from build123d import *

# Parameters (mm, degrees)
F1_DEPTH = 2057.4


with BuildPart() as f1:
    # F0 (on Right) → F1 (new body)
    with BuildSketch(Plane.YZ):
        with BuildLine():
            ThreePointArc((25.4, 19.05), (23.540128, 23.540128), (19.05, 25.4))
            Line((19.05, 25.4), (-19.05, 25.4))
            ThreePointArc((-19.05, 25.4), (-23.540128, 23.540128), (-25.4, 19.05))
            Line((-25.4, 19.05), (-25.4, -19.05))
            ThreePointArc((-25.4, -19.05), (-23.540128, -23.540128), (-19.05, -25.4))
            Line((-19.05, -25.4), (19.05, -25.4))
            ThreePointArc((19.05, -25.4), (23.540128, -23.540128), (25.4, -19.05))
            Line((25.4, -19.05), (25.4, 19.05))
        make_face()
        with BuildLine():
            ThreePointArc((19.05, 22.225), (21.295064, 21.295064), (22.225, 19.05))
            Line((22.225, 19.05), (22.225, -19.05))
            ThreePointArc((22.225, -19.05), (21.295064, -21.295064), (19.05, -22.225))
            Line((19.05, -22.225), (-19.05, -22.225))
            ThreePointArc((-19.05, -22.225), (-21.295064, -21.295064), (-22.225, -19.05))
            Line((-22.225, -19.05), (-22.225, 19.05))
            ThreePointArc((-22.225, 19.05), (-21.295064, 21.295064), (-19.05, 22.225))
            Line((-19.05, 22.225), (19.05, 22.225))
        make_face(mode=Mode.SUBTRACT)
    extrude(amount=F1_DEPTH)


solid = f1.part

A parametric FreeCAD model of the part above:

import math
import FreeCAD as App
import Part
import Sketcher

V = App.Vector
Q = App.Units.Quantity

doc = App.newDocument("Part")
params = doc.addObject("Spreadsheet::Sheet", "Params")
for row, (alias, value) in enumerate([
    ("sketch1_radius", "0.25 in"),
    ("sketch1_width", "1.5 in"),
    ("sketch1_radius2", "0.125 in"),
    ("pad1_length", "81 in"),
], start=1):
    params.set(f"A{row}", alias)
    params.set(f"B{row}", "=" + value)
    params.setAlias(f"B{row}", alias)

body = doc.addObject("PartDesign::Body", "Body")

# Sketch on YZ plane
sketch1 = body.newObject("Sketcher::SketchObject", "Sketch")
sketch1.AttachmentSupport = (doc.getObject("YZ_Plane"), [""])
sketch1.MapMode = "FlatFace"
sketch1.addGeometry([
    Part.ArcOfCircle(Part.Circle(V(19, 19, 0), V(0, 0, 1), 6.4), math.radians(0), math.radians(90)),  # 0
    Part.LineSegment(V(19.1, 25.4, 0), V(-19.1, 25.4, 0)),  # 1
    Part.ArcOfCircle(Part.Circle(V(-19, 19, 0), V(0, 0, 1), 6.4), math.radians(90), math.radians(180)),  # 2
    Part.LineSegment(V(-25.4, 19.1, 0), V(-25.4, -19.1, 0)),  # 3
    Part.ArcOfCircle(Part.Circle(V(-19, -19, 0), V(0, 0, 1), 6.4), math.radians(-180), math.radians(-90)),  # 4
    Part.LineSegment(V(-19.1, -25.4, 0), V(19.1, -25.4, 0)),  # 5
    Part.ArcOfCircle(Part.Circle(V(19, -19, 0), V(0, 0, 1), 6.4), math.radians(-90), math.radians(0)),  # 6
    Part.LineSegment(V(25.4, -19.1, 0), V(25.4, 19.1, 0)),  # 7
    Part.LineSegment(V(-19.1, 22.2, 0), V(19.1, 22.2, 0)),  # 8
    Part.ArcOfCircle(Part.Circle(V(19, 19, 0), V(0, 0, 1), 3.2), math.radians(0), math.radians(90)),  # 9
    Part.LineSegment(V(22.2, 19.1, 0), V(22.2, -19.1, 0)),  # 10
    Part.ArcOfCircle(Part.Circle(V(19, -19, 0), V(0, 0, 1), 3.2), math.radians(-90), math.radians(0)),  # 11
    Part.LineSegment(V(19.1, -22.2, 0), V(-19.1, -22.2, 0)),  # 12
    Part.ArcOfCircle(Part.Circle(V(-19, -19, 0), V(0, 0, 1), 3.2), math.radians(-180), math.radians(-90)),  # 13
    Part.LineSegment(V(-22.2, -19.1, 0), V(-22.2, 19.1, 0)),  # 14
    Part.ArcOfCircle(Part.Circle(V(-19, 19, 0), V(0, 0, 1), 3.2), math.radians(90), math.radians(180)),  # 15
], False)
sketch1.addConstraint([
    Sketcher.Constraint("Tangent", 0, 2, 1, 1),
    Sketcher.Constraint("Tangent", 1, 2, 2, 1),
    Sketcher.Constraint("Tangent", 2, 2, 3, 1),
    Sketcher.Constraint("Tangent", 3, 2, 4, 1),
    Sketcher.Constraint("Tangent", 4, 2, 5, 1),
    Sketcher.Constraint("Tangent", 5, 2, 6, 1),
    Sketcher.Constraint("Tangent", 6, 2, 7, 1),
    Sketcher.Constraint("Tangent", 7, 2, 0, 1),
    Sketcher.Constraint("Tangent", 8, 2, 9, 2),
    Sketcher.Constraint("Tangent", 9, 1, 10, 1),
    Sketcher.Constraint("Tangent", 10, 2, 11, 2),
    Sketcher.Constraint("Tangent", 11, 1, 12, 1),
    Sketcher.Constraint("Tangent", 12, 2, 13, 2),
    Sketcher.Constraint("Tangent", 13, 1, 14, 1),
    Sketcher.Constraint("Tangent", 14, 2, 15, 2),
    Sketcher.Constraint("Tangent", 15, 1, 8, 1),
    Sketcher.Constraint("Horizontal", 1),
    Sketcher.Constraint("Vertical", 3),
    Sketcher.Constraint("Horizontal", 5),
    Sketcher.Constraint("Vertical", 7),
    Sketcher.Constraint("Horizontal", 8),
    Sketcher.Constraint("Vertical", 10),
    Sketcher.Constraint("Horizontal", 12),
    Sketcher.Constraint("Vertical", 14),
    Sketcher.Constraint("Coincident", 9, 3, 0, 3),
    Sketcher.Constraint("Coincident", 11, 3, 6, 3),
    Sketcher.Constraint("Coincident", 13, 3, 4, 3),
    Sketcher.Constraint("Equal", 0, 2),
    Sketcher.Constraint("Equal", 2, 4),
    Sketcher.Constraint("Equal", 4, 6),
    Sketcher.Constraint("Equal", 13, 15),
    Sketcher.Constraint("Symmetric", 0, 3, 4, 3, -1, 1),
    Sketcher.Constraint("Equal", 12, 3),
    Sketcher.Constraint("Radius", 0, Q("0.25 in")),
    Sketcher.Constraint("DistanceX", 1, 2, 1, 1, Q("1.5 in")),
    Sketcher.Constraint("Radius", 9, Q("0.125 in")),
])
sketch1.setExpression("Constraints[33]", "Params.sketch1_radius")
sketch1.setExpression("Constraints[34]", "Params.sketch1_width")
sketch1.setExpression("Constraints[35]", "Params.sketch1_radius2")
pad1 = body.newObject("PartDesign::Pad", "Pad")
pad1.Profile = sketch1
pad1.setExpression("Length", "Params.pad1_length")

doc.recompute()
